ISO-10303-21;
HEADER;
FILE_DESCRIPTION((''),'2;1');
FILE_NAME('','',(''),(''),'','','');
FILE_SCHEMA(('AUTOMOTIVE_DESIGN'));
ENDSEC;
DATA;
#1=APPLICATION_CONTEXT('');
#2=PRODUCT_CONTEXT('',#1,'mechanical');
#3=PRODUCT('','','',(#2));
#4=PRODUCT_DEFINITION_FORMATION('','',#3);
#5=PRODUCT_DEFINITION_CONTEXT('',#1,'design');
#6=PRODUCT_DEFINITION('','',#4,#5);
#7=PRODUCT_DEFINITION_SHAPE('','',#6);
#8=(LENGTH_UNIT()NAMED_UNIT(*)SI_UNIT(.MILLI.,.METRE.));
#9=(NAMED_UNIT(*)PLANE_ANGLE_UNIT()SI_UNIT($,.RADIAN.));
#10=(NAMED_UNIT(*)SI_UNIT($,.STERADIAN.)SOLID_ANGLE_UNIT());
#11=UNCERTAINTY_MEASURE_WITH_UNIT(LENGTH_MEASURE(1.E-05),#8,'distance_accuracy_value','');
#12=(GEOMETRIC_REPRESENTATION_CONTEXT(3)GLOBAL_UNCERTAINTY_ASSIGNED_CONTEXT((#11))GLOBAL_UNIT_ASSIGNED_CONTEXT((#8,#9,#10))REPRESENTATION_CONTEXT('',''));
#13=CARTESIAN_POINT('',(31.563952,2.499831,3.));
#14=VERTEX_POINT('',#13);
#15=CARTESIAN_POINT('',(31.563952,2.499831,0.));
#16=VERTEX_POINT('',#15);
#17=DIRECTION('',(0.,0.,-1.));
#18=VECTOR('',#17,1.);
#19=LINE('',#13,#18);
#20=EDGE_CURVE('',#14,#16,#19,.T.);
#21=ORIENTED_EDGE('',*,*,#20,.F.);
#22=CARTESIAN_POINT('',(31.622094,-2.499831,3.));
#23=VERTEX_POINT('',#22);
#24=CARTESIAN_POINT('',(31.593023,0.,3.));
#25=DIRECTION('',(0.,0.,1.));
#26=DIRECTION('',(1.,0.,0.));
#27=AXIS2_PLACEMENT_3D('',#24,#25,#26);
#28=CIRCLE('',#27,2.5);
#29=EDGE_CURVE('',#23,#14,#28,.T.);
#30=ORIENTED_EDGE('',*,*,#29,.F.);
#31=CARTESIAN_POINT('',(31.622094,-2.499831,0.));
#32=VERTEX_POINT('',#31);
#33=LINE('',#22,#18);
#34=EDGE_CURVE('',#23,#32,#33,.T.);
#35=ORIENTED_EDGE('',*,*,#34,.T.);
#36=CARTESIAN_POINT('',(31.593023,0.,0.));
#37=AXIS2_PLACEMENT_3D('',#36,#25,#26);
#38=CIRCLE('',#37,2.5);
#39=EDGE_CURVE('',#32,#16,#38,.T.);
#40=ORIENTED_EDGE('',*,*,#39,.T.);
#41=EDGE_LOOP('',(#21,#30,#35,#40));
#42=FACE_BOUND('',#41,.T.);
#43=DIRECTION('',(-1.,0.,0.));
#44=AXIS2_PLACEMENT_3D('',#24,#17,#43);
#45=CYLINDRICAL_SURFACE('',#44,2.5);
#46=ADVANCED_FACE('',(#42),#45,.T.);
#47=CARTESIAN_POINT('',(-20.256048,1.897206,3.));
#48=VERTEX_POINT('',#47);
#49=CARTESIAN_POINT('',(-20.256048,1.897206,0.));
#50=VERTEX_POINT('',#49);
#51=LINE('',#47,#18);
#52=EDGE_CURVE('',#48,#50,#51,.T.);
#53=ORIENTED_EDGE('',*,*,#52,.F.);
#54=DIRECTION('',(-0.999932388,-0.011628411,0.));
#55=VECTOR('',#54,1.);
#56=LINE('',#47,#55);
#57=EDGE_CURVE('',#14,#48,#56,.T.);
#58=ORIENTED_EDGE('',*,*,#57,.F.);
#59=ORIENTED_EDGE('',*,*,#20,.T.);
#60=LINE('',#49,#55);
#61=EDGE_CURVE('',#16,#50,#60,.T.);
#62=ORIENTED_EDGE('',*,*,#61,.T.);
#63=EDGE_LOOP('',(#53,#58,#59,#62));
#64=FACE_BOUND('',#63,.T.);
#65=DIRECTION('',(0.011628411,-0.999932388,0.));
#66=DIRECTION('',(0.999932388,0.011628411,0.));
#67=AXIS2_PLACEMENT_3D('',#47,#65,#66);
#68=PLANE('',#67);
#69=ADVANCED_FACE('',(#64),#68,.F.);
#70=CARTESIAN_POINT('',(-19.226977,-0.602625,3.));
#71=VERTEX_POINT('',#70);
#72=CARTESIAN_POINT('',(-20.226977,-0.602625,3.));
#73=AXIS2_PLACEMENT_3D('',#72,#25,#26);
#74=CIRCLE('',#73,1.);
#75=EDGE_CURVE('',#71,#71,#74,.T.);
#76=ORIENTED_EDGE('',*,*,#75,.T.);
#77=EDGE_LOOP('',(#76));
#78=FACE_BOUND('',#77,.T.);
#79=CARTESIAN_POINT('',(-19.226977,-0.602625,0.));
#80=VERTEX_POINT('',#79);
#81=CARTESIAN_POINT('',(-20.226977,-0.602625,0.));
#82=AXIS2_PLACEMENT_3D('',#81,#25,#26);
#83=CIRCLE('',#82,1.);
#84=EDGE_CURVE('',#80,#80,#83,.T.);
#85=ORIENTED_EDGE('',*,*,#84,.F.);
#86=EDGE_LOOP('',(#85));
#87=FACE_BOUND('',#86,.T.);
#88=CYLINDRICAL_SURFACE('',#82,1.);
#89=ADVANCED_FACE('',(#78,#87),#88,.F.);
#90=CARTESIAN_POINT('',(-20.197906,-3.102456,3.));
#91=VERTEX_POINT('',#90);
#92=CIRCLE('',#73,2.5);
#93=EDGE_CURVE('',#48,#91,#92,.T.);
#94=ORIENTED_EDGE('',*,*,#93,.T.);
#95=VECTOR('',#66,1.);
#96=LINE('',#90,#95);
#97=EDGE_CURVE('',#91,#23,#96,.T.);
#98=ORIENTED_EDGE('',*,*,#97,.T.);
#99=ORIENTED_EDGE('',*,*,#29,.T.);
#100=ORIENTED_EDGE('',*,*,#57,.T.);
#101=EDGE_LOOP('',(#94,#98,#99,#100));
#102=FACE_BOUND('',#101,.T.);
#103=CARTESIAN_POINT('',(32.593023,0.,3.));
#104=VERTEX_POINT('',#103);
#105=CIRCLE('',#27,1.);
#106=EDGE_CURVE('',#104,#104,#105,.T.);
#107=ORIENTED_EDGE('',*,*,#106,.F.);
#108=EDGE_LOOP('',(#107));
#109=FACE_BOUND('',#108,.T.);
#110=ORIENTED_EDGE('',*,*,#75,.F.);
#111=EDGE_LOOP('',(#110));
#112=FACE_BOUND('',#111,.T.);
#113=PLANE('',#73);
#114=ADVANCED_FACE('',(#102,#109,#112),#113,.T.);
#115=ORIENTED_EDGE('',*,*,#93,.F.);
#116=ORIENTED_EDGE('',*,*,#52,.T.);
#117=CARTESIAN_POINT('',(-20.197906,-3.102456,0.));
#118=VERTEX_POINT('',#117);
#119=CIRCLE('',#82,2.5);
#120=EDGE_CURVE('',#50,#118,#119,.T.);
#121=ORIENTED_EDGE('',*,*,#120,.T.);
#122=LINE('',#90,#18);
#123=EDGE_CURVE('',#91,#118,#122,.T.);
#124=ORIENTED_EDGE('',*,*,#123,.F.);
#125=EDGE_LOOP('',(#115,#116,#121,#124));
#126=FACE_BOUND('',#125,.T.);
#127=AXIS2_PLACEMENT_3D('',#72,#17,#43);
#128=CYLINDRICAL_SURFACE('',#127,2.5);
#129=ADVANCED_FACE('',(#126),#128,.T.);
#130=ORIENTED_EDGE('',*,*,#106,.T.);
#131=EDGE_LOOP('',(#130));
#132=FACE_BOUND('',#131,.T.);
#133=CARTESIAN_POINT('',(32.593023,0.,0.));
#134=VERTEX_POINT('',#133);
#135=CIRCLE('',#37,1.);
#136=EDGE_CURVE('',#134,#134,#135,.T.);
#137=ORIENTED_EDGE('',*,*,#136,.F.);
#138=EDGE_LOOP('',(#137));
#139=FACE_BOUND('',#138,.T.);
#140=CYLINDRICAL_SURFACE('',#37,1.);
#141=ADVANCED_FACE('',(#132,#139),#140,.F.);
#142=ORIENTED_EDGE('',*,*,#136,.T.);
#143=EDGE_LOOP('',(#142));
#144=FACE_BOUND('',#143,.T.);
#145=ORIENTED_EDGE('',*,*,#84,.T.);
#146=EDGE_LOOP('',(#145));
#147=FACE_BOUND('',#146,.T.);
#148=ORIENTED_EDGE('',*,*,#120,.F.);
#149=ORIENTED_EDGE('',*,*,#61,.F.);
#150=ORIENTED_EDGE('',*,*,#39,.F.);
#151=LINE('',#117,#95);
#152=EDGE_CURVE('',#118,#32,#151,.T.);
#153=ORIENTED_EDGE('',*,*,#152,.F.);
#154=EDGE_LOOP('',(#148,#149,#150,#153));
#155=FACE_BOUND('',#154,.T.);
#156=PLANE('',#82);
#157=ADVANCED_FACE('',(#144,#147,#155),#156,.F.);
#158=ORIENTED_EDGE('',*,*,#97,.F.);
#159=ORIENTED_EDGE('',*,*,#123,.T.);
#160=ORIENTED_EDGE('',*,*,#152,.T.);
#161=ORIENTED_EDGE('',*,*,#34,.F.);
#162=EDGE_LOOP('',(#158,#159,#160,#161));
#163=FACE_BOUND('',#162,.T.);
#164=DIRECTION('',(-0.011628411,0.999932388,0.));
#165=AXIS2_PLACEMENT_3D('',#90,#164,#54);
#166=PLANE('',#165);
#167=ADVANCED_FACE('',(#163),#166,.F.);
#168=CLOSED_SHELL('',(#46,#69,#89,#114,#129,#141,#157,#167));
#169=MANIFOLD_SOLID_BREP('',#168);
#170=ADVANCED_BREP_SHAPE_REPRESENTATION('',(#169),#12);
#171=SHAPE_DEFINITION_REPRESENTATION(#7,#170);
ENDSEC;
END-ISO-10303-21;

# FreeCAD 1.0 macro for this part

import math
import FreeCAD as App
import Part
import Sketcher
from FreeCAD import Vector

doc = App.newDocument("Part")
body = doc.addObject("PartDesign::Body", "Body")

sketch1 = doc.addObject("Sketcher::SketchObject", "Sketch")
body.addObject(sketch1)
sketch1.AttachmentSupport = (doc.XY_Plane, [""])
sketch1.MapMode = "FlatFace"
sketch1.addGeometry([
    Part.LineSegment(Vector(31.563952, 2.499831, 0), Vector(-20.256048, 1.897206, 0)),
    Part.ArcOfCircle(Part.Circle(Vector(-20.226977, -0.602625, 0), Vector(0, 0, 1), 2.5), math.radians(90.666274), math.radians(270.666274)),
    Part.LineSegment(Vector(-20.197906, -3.102456, 0), Vector(31.622094, -2.499831, 0)),
    Part.ArcOfCircle(Part.Circle(Vector(31.593023, 0, 0), Vector(0, 0, 1), 2.5), math.radians(-89.333726), math.radians(90.666274)),
], False)
sketch1.addConstraint([
    Sketcher.Constraint("Tangent", 0, 2, 1, 1),
    Sketcher.Constraint("Tangent", 1, 2, 2, 1),
    Sketcher.Constraint("Tangent", 2, 2, 3, 1),
    Sketcher.Constraint("Tangent", 3, 2, 0, 1),
    Sketcher.Constraint("Equal", 1, 3),
    Sketcher.Constraint("PointOnObject", 3, 3, -1),
    Sketcher.Constraint("Radius", 1, 2.5),
    Sketcher.Constraint("DistanceX", 1, 3, 3, 3, 51.82),
    Sketcher.Constraint("DistanceX", 0, 2, -1, 1, 20.256048),
    Sketcher.Constraint("DistanceX", 0, 2, 1, 3, 0.029071),
])
pad1 = doc.addObject("PartDesign::Pad", "Pad")
body.addObject(pad1)
pad1.Profile = sketch1
pad1.Length = 3

sketch2 = doc.addObject("Sketcher::SketchObject", "Sketch001")
body.addObject(sketch2)
sketch2.AttachmentSupport = (doc.XY_Plane, [""])
sketch2.MapMode = "FlatFace"
sketch2.AttachmentOffset = App.Placement(Vector(0, 0, 3), App.Rotation())
sketch2.addGeometry([
    Part.Circle(Vector(31.593023, 0, 0), Vector(0, 0, 1), 1),
    Part.Circle(Vector(-20.226977, -0.602625, 0), Vector(0, 0, 1), 1),
], False)
sketch2.addConstraint([
    Sketcher.Constraint("Equal", 0, 1),
    Sketcher.Constraint("PointOnObject", 0, 3, -1),
    Sketcher.Constraint("Diameter", 0, 2.0),
    Sketcher.Constraint("DistanceX", 1, 3, 0, 3, 51.82),
    Sketcher.Constraint("DistanceX", -1, 1, 0, 3, 31.593023),
    Sketcher.Constraint("DistanceY", 1, 3, -1, 1, 0.602625),
])
pocket1 = doc.addObject("PartDesign::Pocket", "Pocket")
body.addObject(pocket1)
pocket1.Profile = sketch2
pocket1.Type = "ThroughAll"

doc.recompute()
